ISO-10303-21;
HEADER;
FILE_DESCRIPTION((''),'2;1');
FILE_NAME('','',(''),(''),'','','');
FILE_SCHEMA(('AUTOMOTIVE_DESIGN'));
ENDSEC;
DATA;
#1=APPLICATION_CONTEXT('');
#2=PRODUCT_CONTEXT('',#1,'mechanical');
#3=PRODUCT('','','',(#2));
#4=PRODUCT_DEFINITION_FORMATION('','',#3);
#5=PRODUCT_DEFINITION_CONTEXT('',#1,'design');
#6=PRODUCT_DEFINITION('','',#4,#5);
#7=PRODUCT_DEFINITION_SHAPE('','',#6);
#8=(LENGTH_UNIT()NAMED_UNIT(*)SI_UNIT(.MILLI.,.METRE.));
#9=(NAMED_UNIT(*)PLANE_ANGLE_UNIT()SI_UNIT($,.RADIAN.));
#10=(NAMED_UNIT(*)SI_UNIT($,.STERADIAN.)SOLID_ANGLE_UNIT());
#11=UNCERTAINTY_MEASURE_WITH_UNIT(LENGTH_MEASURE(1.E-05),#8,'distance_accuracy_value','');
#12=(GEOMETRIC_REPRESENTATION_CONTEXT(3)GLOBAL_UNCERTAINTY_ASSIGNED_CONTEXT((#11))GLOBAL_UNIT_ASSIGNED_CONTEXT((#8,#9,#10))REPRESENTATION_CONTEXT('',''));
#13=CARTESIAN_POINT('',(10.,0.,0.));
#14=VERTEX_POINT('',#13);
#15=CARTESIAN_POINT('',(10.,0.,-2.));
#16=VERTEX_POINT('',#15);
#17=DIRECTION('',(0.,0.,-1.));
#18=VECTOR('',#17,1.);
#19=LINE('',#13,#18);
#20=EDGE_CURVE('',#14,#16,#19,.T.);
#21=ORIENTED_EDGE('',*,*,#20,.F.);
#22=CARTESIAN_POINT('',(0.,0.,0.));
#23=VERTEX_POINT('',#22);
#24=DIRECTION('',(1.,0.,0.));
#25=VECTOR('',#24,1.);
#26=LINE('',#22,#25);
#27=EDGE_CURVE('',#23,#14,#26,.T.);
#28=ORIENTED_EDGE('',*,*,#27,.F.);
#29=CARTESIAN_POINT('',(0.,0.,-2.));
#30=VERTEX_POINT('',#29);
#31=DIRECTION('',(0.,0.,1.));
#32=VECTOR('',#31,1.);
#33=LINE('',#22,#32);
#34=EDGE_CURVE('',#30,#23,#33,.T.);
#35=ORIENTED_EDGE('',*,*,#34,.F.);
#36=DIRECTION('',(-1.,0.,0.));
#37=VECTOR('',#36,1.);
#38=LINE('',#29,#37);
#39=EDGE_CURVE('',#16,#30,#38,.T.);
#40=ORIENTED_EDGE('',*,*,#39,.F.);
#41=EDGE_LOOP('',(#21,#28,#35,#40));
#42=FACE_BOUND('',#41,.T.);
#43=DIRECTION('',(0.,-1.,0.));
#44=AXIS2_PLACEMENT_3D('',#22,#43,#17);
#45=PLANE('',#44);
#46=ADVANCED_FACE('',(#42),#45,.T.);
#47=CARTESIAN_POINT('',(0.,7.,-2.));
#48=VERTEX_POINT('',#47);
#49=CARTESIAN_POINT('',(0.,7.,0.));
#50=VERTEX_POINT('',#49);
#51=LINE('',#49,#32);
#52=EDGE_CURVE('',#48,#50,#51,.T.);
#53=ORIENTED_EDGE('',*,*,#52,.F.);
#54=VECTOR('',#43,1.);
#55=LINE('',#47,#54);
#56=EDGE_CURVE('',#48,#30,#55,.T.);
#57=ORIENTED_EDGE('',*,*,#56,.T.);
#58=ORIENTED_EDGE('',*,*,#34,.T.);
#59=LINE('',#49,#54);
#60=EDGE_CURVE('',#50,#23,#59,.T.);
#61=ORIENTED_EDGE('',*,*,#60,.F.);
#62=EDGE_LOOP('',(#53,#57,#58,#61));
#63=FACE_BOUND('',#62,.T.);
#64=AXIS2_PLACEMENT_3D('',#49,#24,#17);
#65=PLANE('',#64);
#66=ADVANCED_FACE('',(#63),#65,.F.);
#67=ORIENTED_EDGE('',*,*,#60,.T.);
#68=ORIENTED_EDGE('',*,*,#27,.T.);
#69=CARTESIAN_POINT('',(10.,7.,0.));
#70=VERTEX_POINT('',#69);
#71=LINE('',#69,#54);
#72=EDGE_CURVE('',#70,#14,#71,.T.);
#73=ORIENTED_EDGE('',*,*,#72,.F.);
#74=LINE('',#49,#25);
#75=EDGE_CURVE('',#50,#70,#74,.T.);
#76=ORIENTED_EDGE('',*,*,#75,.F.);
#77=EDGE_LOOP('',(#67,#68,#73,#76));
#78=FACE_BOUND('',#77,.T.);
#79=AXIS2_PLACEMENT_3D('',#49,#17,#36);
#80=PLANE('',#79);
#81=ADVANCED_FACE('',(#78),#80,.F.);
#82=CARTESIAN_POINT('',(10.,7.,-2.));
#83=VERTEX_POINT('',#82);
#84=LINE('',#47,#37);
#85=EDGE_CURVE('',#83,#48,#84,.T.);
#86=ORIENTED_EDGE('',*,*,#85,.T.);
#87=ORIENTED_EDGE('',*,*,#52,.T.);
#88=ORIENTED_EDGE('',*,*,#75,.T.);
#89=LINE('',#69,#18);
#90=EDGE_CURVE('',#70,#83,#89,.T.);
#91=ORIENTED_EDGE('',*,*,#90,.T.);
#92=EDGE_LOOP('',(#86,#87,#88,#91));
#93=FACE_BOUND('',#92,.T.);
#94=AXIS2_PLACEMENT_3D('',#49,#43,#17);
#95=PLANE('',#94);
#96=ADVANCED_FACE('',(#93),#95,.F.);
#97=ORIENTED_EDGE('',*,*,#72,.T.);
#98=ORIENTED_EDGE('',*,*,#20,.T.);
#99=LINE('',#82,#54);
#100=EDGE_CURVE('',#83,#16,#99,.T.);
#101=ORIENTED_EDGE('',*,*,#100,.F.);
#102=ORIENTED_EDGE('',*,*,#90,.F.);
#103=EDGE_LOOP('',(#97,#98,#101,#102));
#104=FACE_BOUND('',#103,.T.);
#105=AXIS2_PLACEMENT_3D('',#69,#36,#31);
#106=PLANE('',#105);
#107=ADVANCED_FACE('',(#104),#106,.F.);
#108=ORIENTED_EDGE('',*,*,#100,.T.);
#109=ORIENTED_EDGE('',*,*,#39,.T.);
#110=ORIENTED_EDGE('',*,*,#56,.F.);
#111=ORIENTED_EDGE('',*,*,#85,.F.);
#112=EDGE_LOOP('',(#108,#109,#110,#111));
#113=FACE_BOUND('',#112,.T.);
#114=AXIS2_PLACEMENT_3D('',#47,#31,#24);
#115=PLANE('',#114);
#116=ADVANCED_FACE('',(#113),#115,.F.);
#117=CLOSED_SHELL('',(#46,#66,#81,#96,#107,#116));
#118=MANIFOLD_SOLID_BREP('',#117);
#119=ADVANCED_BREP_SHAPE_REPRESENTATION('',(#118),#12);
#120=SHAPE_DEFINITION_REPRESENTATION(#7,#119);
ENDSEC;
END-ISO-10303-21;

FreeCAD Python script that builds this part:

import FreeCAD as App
import Part
import Sketcher
Q = App.Units.Quantity


def add_polygon(sketch, points):
    """Adds a closed chain of lines whose ends are joined by coincident constraints."""
    first, n = sketch.GeometryCount, len(points)
    for a, b in zip(points, points[1:] + points[:1]):
        sketch.addGeometry(Part.LineSegment(App.Vector(*a, 0), App.Vector(*b, 0)), False)
    for i in range(n):
        sketch.addConstraint(Sketcher.Constraint("Coincident", first + i, 2, first + (i + 1) % n, 1))

doc = App.newDocument("Part")
params = doc.addObject("Spreadsheet::Sheet", "Params")
for row, (alias, value) in enumerate([
    ("sketch1_width", "10 mm"),
    ("sketch1_height", "2 mm"),
    ("pad1_length", "7 mm"),
], start=1):
    params.set(f"A{row}", alias)
    params.set(f"B{row}", "=" + value)
    params.setAlias(f"B{row}", alias)

body = doc.addObject("PartDesign::Body", "Body")

sketch1 = body.newObject("Sketcher::SketchObject", "Sketch")
sketch1.AttachmentSupport = (doc.getObject("XZ_Plane"), [""])
sketch1.MapMode = "FlatFace"
add_polygon(sketch1, [(0, -2), (0, 0), (10, 0), (10, -2)])
sketch1.addConstraint([
    Sketcher.Constraint("Vertical", 0),
    Sketcher.Constraint("Horizontal", 1),
    Sketcher.Constraint("Vertical", 2),
    Sketcher.Constraint("Horizontal", 3),
    Sketcher.Constraint("Coincident", 0, 2, -1, 1),
    Sketcher.Constraint("DistanceX", 1, 1, 1, 2, Q("10 mm")),
    Sketcher.Constraint("DistanceY", 0, 1, 0, 2, Q("2 mm")),
])
sketch1.setExpression("Constraints[9]", "Params.sketch1_width")
sketch1.setExpression("Constraints[10]", "Params.sketch1_height")
pad1 = body.newObject("PartDesign::Pad", "Pad")
pad1.Profile = sketch1
pad1.setExpression("Length", "Params.pad1_length")
pad1.Reversed = True

doc.recompute()
